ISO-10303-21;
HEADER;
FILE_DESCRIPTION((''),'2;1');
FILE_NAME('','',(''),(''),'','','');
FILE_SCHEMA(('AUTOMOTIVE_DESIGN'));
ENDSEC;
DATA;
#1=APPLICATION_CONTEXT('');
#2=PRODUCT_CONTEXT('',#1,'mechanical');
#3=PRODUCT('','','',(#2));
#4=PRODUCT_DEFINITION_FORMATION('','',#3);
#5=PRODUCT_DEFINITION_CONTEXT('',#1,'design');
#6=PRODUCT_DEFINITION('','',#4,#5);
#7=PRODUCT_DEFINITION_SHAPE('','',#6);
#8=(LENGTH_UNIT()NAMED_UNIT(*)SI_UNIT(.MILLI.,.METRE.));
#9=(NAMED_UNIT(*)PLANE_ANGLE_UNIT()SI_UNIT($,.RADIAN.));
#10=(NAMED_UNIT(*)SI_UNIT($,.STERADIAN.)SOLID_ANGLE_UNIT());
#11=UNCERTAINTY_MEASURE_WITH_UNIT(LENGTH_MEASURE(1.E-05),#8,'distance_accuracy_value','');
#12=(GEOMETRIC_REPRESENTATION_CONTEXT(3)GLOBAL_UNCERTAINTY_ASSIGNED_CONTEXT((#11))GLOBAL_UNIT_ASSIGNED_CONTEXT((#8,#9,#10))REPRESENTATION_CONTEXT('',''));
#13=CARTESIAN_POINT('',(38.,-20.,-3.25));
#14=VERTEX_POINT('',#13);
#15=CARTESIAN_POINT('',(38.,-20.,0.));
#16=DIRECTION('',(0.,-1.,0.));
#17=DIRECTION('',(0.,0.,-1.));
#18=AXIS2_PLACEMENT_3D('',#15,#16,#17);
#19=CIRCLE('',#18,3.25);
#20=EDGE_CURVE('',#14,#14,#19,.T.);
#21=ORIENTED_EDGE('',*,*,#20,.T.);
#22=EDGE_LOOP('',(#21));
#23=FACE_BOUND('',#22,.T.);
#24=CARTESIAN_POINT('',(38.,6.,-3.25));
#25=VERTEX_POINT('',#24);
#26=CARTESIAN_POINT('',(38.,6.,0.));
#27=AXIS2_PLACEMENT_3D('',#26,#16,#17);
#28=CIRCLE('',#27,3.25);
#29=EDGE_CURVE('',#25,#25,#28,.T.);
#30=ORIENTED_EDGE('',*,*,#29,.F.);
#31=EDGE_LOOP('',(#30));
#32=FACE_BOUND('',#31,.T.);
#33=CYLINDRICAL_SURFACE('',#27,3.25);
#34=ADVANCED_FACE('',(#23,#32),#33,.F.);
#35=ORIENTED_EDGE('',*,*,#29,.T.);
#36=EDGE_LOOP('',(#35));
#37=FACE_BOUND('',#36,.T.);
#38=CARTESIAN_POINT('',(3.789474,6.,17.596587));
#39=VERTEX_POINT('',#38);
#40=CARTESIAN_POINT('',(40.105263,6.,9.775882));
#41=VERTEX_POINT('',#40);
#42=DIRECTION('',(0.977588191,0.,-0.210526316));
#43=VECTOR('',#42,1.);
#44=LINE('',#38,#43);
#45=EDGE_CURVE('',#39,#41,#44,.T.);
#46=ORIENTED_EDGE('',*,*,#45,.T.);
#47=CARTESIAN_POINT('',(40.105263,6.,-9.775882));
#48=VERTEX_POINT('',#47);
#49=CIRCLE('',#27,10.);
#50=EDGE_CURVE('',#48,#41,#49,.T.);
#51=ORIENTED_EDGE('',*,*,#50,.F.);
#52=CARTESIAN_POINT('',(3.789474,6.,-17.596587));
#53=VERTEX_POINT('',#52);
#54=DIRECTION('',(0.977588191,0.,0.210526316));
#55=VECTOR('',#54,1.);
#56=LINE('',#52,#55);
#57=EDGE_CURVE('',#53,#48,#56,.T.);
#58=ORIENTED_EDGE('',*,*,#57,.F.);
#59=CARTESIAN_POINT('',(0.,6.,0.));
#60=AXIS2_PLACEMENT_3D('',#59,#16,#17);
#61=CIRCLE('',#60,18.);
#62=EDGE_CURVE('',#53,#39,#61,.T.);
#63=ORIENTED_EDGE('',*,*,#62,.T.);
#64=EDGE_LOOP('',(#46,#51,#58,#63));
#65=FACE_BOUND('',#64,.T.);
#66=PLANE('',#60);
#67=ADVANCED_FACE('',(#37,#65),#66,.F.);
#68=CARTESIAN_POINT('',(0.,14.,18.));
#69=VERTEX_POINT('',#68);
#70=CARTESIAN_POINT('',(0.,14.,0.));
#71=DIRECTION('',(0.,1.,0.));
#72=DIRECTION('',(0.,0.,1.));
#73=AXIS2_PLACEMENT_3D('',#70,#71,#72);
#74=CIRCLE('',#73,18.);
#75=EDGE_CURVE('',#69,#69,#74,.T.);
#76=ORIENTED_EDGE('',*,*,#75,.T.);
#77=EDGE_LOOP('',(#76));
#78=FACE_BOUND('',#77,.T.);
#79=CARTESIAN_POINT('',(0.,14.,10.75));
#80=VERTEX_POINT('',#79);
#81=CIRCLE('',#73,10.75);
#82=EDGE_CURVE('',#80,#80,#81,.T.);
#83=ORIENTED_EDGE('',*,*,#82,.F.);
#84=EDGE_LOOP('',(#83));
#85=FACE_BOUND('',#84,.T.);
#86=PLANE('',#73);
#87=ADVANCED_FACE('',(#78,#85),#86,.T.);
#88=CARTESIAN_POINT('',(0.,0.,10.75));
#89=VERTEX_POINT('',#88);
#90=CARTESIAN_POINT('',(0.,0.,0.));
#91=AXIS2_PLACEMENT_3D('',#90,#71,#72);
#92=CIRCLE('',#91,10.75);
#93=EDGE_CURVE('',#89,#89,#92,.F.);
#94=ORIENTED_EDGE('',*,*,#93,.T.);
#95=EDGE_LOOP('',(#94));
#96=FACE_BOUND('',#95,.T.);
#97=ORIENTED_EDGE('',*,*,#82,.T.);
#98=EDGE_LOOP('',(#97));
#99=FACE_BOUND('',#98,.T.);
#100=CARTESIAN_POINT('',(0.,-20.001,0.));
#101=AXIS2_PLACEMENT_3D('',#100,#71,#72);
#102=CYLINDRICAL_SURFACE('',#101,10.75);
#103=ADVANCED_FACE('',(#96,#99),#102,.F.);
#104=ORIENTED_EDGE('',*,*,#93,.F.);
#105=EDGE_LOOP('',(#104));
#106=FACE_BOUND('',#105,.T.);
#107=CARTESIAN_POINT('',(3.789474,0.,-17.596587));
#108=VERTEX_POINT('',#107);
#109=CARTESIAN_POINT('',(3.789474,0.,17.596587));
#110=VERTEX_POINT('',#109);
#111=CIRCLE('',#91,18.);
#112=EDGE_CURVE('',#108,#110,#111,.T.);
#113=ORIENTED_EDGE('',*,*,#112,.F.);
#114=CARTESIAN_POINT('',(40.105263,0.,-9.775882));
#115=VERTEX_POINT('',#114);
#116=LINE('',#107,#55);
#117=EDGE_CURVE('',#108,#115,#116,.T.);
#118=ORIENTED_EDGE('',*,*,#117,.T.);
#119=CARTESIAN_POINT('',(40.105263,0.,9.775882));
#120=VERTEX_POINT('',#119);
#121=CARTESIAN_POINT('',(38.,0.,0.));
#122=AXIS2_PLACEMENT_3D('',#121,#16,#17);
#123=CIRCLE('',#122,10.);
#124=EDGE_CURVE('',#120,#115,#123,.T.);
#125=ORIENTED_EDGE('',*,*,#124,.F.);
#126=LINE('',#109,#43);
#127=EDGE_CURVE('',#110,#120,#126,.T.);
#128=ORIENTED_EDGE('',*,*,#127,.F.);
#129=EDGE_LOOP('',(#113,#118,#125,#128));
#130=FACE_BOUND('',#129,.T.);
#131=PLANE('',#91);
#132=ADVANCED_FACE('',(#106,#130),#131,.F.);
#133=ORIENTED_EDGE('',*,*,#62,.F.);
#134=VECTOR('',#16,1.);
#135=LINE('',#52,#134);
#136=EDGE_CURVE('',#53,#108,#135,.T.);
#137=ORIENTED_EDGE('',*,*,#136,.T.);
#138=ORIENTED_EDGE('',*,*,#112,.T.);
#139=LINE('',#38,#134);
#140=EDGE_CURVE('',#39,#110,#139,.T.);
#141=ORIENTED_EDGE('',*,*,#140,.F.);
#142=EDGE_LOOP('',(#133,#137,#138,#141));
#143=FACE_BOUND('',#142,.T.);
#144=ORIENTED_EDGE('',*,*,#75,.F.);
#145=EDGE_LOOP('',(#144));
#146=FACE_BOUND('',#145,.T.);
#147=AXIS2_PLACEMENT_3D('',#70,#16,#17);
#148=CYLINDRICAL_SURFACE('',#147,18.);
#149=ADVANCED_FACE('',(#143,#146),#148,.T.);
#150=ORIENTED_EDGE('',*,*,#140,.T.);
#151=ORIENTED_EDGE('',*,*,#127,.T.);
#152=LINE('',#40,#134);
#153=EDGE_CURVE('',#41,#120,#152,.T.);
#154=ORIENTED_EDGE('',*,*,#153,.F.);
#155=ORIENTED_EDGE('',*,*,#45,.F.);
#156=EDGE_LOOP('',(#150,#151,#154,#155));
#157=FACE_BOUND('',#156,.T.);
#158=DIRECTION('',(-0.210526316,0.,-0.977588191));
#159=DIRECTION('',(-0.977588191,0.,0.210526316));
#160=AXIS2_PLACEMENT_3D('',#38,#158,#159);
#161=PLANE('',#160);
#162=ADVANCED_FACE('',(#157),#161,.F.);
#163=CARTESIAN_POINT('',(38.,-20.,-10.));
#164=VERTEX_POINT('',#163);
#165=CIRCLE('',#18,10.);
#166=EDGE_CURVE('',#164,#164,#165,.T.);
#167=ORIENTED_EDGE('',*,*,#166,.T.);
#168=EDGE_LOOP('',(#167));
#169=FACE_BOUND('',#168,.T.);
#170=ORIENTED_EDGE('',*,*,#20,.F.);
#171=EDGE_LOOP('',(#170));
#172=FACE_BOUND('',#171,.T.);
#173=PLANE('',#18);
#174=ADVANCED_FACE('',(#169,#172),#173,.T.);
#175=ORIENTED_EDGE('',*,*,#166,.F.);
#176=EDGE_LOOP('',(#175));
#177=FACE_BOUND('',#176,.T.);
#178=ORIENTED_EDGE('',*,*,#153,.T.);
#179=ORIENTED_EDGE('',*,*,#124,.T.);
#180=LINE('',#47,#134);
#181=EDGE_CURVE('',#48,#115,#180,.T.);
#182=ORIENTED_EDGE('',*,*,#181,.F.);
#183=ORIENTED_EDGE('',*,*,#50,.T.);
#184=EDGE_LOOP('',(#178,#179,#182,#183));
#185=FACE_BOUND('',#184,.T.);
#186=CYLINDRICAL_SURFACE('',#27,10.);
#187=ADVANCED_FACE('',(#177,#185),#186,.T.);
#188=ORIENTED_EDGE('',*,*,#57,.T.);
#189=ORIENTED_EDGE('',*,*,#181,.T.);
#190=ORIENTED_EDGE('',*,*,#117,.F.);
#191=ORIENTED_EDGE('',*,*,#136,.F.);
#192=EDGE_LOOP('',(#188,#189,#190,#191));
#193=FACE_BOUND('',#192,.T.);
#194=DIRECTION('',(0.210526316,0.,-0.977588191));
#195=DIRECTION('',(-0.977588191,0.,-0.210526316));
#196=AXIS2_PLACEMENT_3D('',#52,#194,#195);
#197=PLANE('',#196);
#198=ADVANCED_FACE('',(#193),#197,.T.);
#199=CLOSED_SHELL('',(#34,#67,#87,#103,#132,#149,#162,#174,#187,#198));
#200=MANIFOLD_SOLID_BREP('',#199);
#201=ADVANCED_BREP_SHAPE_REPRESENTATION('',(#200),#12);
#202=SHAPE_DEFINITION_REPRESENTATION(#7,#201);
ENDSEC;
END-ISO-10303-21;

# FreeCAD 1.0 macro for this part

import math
import FreeCAD as App
import Part
import Sketcher
Q = App.Units.Quantity

doc = App.newDocument("Part")
params = doc.addObject("Spreadsheet::Sheet", "Params")
for row, (alias, value) in enumerate([
    ("sketch1_diameter", "36 mm"),
    ("pad1_length", "14 mm"),
    ("sketch2_radius", "18 mm"),
    ("sketch2_radius2", "10 mm"),
    ("sketch2_diameter", "6.5 mm"),
    ("pad2_length", "6 mm"),
    ("sketch3_diameter", "20 mm"),
    ("sketch3_diameter2", "6.5 mm"),
    ("pad3_length", "20 mm"),
    ("sketch4_diameter", "21.5 mm"),
], start=1):
    params.set(f"A{row}", alias)
    params.set(f"B{row}", "=" + value)
    params.setAlias(f"B{row}", alias)

body = doc.addObject("PartDesign::Body", "Body")

sketch1 = body.newObject("Sketcher::SketchObject", "Sketch")
sketch1.AttachmentSupport = (doc.getObject("XZ_Plane"), [""])
sketch1.MapMode = "FlatFace"
sketch1.addGeometry(Part.Circle(App.Vector(0, 0, 0), App.Vector(0, 0, 1), 18), False)
sketch1.addConstraint([
    Sketcher.Constraint("Coincident", 0, 3, -1, 1),
    Sketcher.Constraint("Diameter", 0, Q("36 mm")),
])
sketch1.setExpression("Constraints[1]", "Params.sketch1_diameter")
pad1 = body.newObject("PartDesign::Pad", "Pad")
pad1.Profile = sketch1
pad1.setExpression("Length", "Params.pad1_length")
pad1.Reversed = True

sketch2 = body.newObject("Sketcher::SketchObject", "Sketch001")
sketch2.AttachmentSupport = (doc.getObject("XZ_Plane"), [""])
sketch2.MapMode = "FlatFace"
sketch2.addGeometry([
    Part.LineSegment(App.Vector(40.105263, 9.775882, 0), App.Vector(3.789474, 17.596587, 0)),
    Part.ArcOfCircle(Part.Circle(App.Vector(0, 0, 0), App.Vector(0, 0, 1), 18), math.radians(0), math.radians(77.846803)),
    Part.ArcOfCircle(Part.Circle(App.Vector(0, 0, 0), App.Vector(0, 0, 1), 18), math.radians(-77.846803), math.radians(0)),
    Part.LineSegment(App.Vector(3.789474, -17.596587, 0), App.Vector(40.105263, -9.775882, 0)),
    Part.ArcOfCircle(Part.Circle(App.Vector(38, 0, 0), App.Vector(0, 0, 1), 10), math.radians(-77.846803), math.radians(77.846803)),
    Part.Circle(App.Vector(38, 0, 0), App.Vector(0, 0, 1), 3.25),
], False)
sketch2.addConstraint([
    Sketcher.Constraint("Tangent", 0, 2, 1, 2),
    Sketcher.Constraint("Tangent", 1, 1, 2, 2),
    Sketcher.Constraint("Tangent", 2, 1, 3, 1),
    Sketcher.Constraint("Tangent", 3, 2, 4, 1),
    Sketcher.Constraint("Tangent", 4, 2, 0, 1),
    Sketcher.Constraint("Coincident", 1, 3, -1, 1),
    Sketcher.Constraint("Coincident", 5, 3, 4, 3),
    Sketcher.Constraint("Equal", 1, 2),
    Sketcher.Constraint("PointOnObject", 4, 3, -1),
    Sketcher.Constraint("PointOnObject", 1, 1, -1),
    Sketcher.Constraint("Radius", 1, Q("18 mm")),
    Sketcher.Constraint("Radius", 4, Q("10 mm")),
    Sketcher.Constraint("Diameter", 5, Q("6.5 mm")),
    Sketcher.Constraint("DistanceX", -1, 1, 4, 3, Q("38 mm")),
])
sketch2.setExpression("Constraints[10]", "Params.sketch2_radius")
sketch2.setExpression("Constraints[11]", "Params.sketch2_radius2")
sketch2.setExpression("Constraints[12]", "Params.sketch2_diameter")
pad2 = body.newObject("PartDesign::Pad", "Pad001")
pad2.Profile = sketch2
pad2.setExpression("Length", "Params.pad2_length")
pad2.Reversed = True

sketch3 = body.newObject("Sketcher::SketchObject", "Sketch002")
sketch3.AttachmentSupport = (doc.getObject("XZ_Plane"), [""])
sketch3.MapMode = "FlatFace"
sketch3.addGeometry([
    Part.Circle(App.Vector(38, 0, 0), App.Vector(0, 0, 1), 10),
    Part.Circle(App.Vector(38, 0, 0), App.Vector(0, 0, 1), 3.25),
], False)
sketch3.addConstraint([
    Sketcher.Constraint("Coincident", 1, 3, 0, 3),
    Sketcher.Constraint("PointOnObject", 0, 3, -1),
    Sketcher.Constraint("Diameter", 0, Q("20 mm")),
    Sketcher.Constraint("Diameter", 1, Q("6.5 mm")),
    Sketcher.Constraint("DistanceX", -1, 1, 0, 3, Q("38 mm")),
])
sketch3.setExpression("Constraints[2]", "Params.sketch3_diameter")
sketch3.setExpression("Constraints[3]", "Params.sketch3_diameter2")
pad3 = body.newObject("PartDesign::Pad", "Pad002")
pad3.Profile = sketch3
pad3.setExpression("Length", "Params.pad3_length")

sketch4 = body.newObject("Sketcher::SketchObject", "Sketch003")
sketch4.AttachmentSupport = (doc.getObject("XZ_Plane"), [""])
sketch4.MapMode = "FlatFace"
sketch4.AttachmentOffset = App.Placement(App.Vector(0, 0, -14), App.Rotation())
sketch4.addGeometry(Part.Circle(App.Vector(0, 0, 0), App.Vector(0, 0, 1), 10.75), False)
sketch4.addConstraint([
    Sketcher.Constraint("Coincident", 0, 3, -1, 1),
    Sketcher.Constraint("Diameter", 0, Q("21.5 mm")),
])
sketch4.setExpression("Constraints[1]", "Params.sketch4_diameter")
pocket1 = body.newObject("PartDesign::Pocket", "Pocket")
pocket1.Profile = sketch4
pocket1.Type = "UpToFirst"
pocket1.Reversed = True

doc.recompute()
